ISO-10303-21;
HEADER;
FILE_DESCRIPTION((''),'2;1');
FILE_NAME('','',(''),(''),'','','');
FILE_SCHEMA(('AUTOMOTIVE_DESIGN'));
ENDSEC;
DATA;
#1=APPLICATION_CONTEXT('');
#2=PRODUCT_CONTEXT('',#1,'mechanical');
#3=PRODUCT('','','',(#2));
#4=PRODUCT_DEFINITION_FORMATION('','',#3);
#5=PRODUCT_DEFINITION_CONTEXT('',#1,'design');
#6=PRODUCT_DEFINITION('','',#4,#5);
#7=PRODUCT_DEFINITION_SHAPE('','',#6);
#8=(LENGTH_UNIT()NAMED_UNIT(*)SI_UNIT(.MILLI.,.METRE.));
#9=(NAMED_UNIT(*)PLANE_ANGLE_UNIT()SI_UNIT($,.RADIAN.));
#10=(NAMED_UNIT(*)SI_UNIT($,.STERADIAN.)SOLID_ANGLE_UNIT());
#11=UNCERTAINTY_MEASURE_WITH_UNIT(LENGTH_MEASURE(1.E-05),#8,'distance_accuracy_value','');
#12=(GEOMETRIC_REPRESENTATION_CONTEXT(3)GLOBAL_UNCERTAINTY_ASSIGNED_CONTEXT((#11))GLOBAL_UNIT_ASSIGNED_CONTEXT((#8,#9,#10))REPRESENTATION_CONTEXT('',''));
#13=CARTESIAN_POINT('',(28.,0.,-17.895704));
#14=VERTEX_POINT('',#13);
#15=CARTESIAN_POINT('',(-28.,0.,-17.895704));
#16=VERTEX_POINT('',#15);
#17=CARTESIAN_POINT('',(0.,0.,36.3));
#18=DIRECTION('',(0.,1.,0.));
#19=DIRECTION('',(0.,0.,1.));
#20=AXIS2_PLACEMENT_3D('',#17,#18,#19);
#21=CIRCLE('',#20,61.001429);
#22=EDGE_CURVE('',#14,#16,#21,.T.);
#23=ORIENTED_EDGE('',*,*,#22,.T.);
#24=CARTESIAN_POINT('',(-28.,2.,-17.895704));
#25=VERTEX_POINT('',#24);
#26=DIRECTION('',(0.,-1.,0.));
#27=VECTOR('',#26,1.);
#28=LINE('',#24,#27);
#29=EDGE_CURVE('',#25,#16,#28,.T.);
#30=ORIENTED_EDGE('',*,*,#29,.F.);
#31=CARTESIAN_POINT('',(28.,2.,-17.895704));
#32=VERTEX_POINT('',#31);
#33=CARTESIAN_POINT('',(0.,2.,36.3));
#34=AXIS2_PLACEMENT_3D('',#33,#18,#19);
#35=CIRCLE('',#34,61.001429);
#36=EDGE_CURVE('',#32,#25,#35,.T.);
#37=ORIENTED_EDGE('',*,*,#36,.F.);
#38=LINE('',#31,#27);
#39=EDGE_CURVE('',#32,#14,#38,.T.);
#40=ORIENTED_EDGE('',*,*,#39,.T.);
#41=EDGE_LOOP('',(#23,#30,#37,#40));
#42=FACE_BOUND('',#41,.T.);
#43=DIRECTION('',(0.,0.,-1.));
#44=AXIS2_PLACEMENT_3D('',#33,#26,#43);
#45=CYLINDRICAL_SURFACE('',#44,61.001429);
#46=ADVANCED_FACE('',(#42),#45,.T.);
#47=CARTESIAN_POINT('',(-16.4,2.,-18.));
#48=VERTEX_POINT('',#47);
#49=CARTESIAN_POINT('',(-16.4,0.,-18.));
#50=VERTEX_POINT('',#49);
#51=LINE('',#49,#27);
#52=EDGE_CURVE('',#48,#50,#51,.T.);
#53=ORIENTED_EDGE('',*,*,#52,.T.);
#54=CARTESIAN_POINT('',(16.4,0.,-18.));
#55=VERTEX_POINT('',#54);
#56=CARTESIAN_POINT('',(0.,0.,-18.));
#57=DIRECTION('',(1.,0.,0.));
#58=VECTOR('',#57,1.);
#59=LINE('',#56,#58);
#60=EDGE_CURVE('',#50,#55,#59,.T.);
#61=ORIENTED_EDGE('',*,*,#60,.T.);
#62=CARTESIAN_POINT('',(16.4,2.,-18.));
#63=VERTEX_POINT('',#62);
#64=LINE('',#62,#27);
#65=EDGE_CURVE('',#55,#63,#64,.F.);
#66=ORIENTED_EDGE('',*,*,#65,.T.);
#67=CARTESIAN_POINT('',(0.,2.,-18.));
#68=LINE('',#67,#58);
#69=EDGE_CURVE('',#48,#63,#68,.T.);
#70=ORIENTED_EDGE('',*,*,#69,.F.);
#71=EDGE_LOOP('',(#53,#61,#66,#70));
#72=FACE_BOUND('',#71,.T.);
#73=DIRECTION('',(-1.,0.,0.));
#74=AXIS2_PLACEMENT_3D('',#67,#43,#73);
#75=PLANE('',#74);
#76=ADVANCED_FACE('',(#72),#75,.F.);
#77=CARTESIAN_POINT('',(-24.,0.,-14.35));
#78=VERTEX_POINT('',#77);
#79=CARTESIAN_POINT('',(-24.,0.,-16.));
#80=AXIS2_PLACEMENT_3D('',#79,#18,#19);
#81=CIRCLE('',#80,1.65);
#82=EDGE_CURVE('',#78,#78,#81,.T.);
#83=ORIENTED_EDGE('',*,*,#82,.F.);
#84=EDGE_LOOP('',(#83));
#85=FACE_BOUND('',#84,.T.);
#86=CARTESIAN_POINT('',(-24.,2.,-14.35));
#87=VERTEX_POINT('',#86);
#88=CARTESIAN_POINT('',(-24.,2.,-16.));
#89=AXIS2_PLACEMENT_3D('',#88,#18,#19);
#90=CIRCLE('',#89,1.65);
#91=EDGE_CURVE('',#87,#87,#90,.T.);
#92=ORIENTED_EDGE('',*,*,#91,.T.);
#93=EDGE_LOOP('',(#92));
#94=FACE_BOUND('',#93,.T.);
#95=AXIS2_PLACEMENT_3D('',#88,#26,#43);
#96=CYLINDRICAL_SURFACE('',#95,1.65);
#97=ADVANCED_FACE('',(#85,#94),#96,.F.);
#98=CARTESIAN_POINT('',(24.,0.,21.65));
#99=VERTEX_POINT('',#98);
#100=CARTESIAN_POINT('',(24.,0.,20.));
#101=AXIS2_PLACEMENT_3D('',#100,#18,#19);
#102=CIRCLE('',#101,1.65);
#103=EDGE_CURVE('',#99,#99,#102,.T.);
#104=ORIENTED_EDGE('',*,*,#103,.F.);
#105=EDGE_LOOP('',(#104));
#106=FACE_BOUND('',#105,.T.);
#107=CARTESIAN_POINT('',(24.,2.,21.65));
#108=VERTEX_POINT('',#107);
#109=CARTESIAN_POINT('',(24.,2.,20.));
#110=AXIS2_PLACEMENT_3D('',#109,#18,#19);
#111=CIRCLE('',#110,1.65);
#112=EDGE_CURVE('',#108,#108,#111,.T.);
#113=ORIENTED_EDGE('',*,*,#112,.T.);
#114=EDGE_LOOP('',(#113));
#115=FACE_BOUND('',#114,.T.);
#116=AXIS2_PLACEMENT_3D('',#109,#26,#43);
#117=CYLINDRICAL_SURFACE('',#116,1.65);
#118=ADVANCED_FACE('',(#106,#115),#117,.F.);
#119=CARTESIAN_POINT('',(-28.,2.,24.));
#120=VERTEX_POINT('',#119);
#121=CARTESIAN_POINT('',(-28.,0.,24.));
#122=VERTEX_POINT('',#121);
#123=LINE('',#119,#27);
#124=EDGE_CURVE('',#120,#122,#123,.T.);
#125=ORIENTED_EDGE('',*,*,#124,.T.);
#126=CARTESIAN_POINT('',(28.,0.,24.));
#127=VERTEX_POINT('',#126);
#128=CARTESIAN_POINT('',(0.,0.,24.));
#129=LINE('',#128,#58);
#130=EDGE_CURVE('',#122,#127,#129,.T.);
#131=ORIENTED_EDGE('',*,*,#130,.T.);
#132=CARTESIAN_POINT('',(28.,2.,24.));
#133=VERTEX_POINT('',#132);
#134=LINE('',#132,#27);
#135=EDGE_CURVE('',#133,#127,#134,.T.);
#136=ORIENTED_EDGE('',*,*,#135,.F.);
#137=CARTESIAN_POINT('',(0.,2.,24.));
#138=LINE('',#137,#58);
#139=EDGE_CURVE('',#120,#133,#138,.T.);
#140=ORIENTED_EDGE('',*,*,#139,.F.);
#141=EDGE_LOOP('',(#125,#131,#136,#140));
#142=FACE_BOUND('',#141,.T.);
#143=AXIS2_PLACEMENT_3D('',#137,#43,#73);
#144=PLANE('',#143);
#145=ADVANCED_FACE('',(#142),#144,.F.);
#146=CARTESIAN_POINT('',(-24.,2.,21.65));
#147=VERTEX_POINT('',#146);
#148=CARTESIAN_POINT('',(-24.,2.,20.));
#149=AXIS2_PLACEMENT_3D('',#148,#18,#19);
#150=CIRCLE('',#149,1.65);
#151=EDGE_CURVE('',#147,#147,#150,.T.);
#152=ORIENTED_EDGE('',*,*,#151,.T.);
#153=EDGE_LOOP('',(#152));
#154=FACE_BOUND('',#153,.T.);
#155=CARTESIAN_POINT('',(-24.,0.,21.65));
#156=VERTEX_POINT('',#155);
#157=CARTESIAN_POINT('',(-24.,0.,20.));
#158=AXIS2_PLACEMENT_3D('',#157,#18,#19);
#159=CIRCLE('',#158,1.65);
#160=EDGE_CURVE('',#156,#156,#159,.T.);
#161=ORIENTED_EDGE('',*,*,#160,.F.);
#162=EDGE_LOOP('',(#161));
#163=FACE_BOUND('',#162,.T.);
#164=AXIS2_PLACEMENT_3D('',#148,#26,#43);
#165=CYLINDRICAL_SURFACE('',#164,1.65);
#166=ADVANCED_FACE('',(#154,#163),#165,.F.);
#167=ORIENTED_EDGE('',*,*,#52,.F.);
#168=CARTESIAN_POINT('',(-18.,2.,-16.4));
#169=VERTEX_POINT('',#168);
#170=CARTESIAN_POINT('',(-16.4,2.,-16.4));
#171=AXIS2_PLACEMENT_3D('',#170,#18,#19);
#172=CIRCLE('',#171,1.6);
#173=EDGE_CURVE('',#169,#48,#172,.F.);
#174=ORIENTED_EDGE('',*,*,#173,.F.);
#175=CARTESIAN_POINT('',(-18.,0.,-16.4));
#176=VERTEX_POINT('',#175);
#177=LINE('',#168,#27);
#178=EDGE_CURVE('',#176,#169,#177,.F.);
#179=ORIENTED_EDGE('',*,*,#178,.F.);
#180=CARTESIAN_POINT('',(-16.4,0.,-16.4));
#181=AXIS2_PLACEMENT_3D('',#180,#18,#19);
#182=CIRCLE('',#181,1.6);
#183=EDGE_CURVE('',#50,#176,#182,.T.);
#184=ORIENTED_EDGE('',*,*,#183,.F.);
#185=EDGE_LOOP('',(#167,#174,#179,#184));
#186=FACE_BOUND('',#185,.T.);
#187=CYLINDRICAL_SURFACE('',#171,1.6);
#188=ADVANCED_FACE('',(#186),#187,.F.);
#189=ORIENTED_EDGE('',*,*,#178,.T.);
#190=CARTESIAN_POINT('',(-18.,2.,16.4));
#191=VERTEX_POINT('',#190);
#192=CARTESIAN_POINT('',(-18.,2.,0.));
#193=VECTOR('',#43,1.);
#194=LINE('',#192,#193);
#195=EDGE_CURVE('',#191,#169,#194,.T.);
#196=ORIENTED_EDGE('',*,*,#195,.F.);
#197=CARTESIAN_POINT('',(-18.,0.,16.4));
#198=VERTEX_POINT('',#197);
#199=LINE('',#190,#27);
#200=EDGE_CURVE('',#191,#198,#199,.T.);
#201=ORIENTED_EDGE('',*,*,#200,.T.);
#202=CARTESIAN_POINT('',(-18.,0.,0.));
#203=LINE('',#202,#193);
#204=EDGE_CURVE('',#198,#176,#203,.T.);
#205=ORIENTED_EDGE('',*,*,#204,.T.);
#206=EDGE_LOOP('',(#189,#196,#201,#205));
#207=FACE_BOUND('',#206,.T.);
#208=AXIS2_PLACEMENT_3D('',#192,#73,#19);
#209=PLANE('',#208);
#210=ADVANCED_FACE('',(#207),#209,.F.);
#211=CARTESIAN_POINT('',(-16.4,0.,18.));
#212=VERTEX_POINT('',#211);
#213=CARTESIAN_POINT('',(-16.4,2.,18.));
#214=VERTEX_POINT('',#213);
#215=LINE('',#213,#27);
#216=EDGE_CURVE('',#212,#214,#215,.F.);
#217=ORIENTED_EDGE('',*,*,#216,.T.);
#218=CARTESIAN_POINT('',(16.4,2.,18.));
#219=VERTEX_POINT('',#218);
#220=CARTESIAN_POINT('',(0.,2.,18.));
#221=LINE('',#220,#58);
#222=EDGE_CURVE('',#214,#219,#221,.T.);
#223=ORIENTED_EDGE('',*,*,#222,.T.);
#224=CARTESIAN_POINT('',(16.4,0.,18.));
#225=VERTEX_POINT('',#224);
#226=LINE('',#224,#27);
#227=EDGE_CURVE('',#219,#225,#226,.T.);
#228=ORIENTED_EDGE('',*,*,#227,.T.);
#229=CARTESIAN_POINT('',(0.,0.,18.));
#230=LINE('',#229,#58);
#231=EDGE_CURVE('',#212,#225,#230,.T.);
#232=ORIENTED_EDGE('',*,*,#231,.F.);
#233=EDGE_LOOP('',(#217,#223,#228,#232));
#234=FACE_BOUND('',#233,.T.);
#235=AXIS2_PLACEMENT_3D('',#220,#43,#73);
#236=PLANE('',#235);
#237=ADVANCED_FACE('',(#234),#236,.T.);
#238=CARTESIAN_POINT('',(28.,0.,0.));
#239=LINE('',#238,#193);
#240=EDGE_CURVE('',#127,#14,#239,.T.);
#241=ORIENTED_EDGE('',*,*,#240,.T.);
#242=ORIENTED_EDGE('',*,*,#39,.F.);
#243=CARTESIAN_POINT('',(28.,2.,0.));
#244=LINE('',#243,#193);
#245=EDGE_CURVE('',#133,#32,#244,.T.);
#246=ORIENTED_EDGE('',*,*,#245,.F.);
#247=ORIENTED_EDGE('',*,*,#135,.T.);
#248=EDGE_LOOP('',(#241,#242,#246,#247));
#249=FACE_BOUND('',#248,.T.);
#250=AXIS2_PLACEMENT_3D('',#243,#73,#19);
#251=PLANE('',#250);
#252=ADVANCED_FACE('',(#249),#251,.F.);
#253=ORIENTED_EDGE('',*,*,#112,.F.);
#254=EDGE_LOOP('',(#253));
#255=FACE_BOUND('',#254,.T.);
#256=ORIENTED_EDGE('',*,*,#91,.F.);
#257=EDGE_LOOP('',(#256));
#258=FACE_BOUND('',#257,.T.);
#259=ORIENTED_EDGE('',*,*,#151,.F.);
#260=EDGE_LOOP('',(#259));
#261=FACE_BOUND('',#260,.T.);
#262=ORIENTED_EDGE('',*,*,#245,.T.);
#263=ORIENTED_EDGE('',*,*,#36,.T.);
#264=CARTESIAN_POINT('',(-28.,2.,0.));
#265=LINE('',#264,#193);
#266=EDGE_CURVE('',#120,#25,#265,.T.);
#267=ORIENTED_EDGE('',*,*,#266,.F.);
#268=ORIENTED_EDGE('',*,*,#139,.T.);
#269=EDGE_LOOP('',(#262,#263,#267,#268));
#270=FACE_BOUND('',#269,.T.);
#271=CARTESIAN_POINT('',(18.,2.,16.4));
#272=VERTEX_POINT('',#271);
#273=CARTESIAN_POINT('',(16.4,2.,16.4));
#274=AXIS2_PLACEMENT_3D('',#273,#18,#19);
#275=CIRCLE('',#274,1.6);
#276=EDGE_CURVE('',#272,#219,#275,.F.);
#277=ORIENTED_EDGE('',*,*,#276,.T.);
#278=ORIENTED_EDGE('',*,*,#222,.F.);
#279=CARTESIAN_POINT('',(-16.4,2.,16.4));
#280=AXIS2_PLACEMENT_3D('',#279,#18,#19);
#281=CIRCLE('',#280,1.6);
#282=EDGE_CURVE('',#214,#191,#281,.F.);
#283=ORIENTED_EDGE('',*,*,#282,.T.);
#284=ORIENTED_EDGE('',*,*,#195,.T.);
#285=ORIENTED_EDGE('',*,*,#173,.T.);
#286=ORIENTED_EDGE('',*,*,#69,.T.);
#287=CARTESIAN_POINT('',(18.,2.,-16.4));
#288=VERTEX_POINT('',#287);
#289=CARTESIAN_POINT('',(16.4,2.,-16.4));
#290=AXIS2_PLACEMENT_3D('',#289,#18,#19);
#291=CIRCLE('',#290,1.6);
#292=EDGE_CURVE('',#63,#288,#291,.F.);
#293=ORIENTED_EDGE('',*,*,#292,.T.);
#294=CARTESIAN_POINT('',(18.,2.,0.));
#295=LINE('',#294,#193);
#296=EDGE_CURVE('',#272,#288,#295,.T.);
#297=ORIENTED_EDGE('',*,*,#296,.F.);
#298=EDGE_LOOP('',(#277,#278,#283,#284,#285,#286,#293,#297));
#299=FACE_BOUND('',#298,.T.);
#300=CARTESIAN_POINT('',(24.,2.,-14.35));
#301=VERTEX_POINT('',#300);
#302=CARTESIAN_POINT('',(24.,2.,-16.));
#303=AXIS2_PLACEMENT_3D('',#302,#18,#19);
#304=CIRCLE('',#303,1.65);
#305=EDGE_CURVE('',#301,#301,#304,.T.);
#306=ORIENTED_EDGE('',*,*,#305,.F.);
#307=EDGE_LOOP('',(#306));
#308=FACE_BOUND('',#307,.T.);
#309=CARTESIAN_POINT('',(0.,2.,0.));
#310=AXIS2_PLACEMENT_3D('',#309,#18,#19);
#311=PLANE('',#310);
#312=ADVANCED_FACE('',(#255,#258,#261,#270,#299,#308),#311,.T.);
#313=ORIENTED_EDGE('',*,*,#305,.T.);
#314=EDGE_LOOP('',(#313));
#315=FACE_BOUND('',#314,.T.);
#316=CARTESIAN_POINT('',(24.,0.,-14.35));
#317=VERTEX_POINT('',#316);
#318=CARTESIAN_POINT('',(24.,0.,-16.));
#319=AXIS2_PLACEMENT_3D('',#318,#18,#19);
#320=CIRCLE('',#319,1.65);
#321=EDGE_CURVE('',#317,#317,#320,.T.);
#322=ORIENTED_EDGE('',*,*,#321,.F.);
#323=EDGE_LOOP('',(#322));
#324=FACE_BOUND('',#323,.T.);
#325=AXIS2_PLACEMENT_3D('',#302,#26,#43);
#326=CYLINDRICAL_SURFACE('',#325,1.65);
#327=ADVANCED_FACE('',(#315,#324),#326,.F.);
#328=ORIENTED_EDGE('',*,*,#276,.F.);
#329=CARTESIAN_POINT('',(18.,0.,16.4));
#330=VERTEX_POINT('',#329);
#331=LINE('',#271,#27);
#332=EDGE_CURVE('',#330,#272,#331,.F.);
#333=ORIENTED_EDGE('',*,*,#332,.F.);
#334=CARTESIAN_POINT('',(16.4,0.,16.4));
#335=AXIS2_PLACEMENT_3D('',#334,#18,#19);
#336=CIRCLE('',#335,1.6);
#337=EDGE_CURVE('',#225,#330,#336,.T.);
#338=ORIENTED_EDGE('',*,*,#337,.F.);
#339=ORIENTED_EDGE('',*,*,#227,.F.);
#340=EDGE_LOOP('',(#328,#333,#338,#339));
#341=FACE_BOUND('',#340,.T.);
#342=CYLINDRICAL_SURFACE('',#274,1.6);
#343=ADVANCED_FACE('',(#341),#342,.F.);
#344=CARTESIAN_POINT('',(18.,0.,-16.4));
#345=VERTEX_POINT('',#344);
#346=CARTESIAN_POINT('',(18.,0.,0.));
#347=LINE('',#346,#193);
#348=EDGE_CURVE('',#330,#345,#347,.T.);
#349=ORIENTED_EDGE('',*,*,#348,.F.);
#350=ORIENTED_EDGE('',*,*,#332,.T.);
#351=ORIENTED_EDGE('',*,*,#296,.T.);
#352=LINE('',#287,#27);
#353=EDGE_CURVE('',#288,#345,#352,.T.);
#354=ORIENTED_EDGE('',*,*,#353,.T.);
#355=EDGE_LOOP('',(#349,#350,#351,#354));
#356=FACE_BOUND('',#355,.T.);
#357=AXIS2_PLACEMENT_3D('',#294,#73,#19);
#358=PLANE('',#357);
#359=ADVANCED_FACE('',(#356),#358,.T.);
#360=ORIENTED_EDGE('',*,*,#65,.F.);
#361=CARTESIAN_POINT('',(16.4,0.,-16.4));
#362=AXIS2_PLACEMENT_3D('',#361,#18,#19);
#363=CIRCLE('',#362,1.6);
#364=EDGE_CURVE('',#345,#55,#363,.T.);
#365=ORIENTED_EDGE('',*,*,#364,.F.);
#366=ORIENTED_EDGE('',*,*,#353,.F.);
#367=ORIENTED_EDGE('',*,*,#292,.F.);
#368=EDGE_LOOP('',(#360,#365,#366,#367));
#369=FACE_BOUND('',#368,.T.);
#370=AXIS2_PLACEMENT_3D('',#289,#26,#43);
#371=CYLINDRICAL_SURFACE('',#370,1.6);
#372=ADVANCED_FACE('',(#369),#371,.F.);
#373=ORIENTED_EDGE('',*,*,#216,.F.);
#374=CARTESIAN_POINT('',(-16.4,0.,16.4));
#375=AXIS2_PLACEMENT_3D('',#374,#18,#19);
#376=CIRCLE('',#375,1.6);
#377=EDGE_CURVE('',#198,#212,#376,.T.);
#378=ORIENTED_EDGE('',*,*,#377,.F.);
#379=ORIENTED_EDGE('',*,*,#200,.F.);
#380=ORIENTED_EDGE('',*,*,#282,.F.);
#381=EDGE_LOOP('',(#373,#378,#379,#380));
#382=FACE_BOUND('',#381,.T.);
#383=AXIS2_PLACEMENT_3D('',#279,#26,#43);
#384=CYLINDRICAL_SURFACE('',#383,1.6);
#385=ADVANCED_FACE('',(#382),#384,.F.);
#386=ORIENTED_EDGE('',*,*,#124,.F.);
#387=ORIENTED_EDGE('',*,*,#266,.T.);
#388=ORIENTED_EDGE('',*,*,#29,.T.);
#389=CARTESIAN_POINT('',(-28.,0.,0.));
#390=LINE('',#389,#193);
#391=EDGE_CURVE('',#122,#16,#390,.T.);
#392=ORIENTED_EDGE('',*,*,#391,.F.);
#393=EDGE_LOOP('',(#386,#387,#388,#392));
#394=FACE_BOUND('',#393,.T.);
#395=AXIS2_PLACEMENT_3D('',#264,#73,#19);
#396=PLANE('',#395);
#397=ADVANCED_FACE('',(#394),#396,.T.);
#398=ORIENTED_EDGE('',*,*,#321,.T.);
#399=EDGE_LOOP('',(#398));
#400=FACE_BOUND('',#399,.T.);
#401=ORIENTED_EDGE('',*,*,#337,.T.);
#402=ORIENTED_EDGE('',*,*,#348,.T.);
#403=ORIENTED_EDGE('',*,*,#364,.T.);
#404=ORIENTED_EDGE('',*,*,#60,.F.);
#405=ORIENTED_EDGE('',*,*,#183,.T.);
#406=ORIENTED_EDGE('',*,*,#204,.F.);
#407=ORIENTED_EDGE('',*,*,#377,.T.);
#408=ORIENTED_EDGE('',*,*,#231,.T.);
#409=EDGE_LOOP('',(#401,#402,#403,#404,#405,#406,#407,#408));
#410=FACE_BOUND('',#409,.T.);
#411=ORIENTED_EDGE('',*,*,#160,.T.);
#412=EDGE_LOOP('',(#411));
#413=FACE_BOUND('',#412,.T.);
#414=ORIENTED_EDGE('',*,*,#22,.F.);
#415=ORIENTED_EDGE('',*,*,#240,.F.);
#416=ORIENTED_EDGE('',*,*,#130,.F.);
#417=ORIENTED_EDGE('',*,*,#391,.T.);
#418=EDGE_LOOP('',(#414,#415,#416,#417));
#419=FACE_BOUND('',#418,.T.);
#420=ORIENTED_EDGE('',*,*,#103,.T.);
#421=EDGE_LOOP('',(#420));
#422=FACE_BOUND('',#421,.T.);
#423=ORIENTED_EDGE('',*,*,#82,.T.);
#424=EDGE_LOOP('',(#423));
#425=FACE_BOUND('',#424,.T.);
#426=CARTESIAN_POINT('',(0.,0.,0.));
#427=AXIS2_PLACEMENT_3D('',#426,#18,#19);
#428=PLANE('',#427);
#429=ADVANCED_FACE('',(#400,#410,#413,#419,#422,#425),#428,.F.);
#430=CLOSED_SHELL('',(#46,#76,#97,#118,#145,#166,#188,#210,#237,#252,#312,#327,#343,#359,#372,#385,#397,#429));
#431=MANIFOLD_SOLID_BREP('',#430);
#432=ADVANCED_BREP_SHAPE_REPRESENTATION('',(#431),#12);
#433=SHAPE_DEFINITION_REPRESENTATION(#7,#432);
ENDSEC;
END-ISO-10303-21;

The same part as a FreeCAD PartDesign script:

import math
import FreeCAD as App
import Part
import Sketcher


def edges_at(feature, points):
    """Names of the edges that pass closest to the given points."""
    edges = feature.Shape.Edges
    near = lambda p: min(range(len(edges)), key=lambda i: edges[i].distToShape(Part.Vertex(*p))[0])
    return sorted({f"Edge{near(p) + 1}" for p in points})

doc = App.newDocument("Part")
body = doc.addObject("PartDesign::Body", "Body")

# Sketch on XZ plane
sketch1 = doc.addObject("Sketcher::SketchObject", "Sketch")
body.addObject(sketch1)
sketch1.AttachmentSupport = (doc.XZ_Plane, [""])
sketch1.MapMode = "FlatFace"
sketch1.addGeometry([
    Part.LineSegment(App.Vector(-28, 24, 0), App.Vector(28, 24, 0)),  # 0
    Part.LineSegment(App.Vector(28, 24, 0), App.Vector(28, -17.9, 0)),  # 1
    Part.ArcOfCircle(Part.Circle(App.Vector(0, 36.3, 0), App.Vector(0, 0, 1), 61), math.radians(-117), math.radians(-63)),  # 2
    Part.LineSegment(App.Vector(-28, -17.9, 0), App.Vector(-28, 24, 0)),  # 3
    Part.Circle(App.Vector(-24, 20, 0), App.Vector(0, 0, 1), 1.6),  # 4
    Part.Circle(App.Vector(24, 20, 0), App.Vector(0, 0, 1), 1.6),  # 5
    Part.Circle(App.Vector(-24, -16, 0), App.Vector(0, 0, 1), 1.6),  # 6
    Part.LineSegment(App.Vector(18, 18, 0), App.Vector(-18, 18, 0)),  # 7
    Part.LineSegment(App.Vector(-18, 18, 0), App.Vector(-18, -18, 0)),  # 8
    Part.LineSegment(App.Vector(-18, -18, 0), App.Vector(18, -18, 0)),  # 9
    Part.LineSegment(App.Vector(18, -18, 0), App.Vector(18, 18, 0)),  # 10
    Part.Circle(App.Vector(24, -16, 0), App.Vector(0, 0, 1), 1.6),  # 11
], False)
sketch1.addConstraint([
    Sketcher.Constraint("Coincident", 0, 2, 1, 1),
    Sketcher.Constraint("Coincident", 1, 2, 2, 2),
    Sketcher.Constraint("Coincident", 2, 1, 3, 1),
    Sketcher.Constraint("Coincident", 3, 2, 0, 1),
    Sketcher.Constraint("Coincident", 7, 2, 8, 1),
    Sketcher.Constraint("Coincident", 8, 2, 9, 1),
    Sketcher.Constraint("Coincident", 9, 2, 10, 1),
    Sketcher.Constraint("Coincident", 10, 2, 7, 1),
    Sketcher.Constraint("Horizontal", 0),
    Sketcher.Constraint("Vertical", 1),
    Sketcher.Constraint("Vertical", 3),
    Sketcher.Constraint("Horizontal", 7),
    Sketcher.Constraint("Vertical", 8),
    Sketcher.Constraint("Horizontal", 9),
    Sketcher.Constraint("Vertical", 10),
    Sketcher.Constraint("Equal", 4, 5),
    Sketcher.Constraint("Equal", 5, 6),
    Sketcher.Constraint("Equal", 6, 11),
    Sketcher.Constraint("Symmetric", 7, 2, 9, 2, -1, 1),
    Sketcher.Constraint("Symmetric", 4, 3, 5, 3, -2),
    Sketcher.Constraint("Symmetric", 6, 3, 11, 3, -2),
    Sketcher.Constraint("Symmetric", 1, 2, 2, 1, -2),
    Sketcher.Constraint("Vertical", 4, 3, 6, 3),
    Sketcher.Constraint("Equal", 9, 8),
    Sketcher.Constraint("Diameter", 4, 3.3),
    Sketcher.Constraint("DistanceX", 0, 1, 0, 2, 56.0),
    Sketcher.Constraint("DistanceX", 7, 2, 7, 1, 36.0),
    Sketcher.Constraint("DistanceX", 4, 3, -1, 1, 24.0),
    Sketcher.Constraint("DistanceY", -1, 1, 4, 3, 20.0),
    Sketcher.Constraint("DistanceY", 6, 3, -1, 1, 16.0),
    Sketcher.Constraint("DistanceY", -1, 1, 0, 2, 24.0),
    Sketcher.Constraint("DistanceY", -1, 1, 2, 3, 36.3),
    Sketcher.Constraint("Radius", 2, 61.001429),
])
pad1 = doc.addObject("PartDesign::Pad", "Pad")
body.addObject(pad1)
pad1.Profile = sketch1
pad1.Length = 2
pad1.Reversed = True
doc.recompute()

fillet = doc.addObject("PartDesign::Fillet", "Fillet")
body.addObject(fillet)
fillet.Base = (pad1, edges_at(pad1, [
    (18, 1, -18),
    (-18, 1, -18),
    (-18, 1, 18),
    (18, 1, 18),
]))
fillet.Radius = 1.6

doc.recompute()
